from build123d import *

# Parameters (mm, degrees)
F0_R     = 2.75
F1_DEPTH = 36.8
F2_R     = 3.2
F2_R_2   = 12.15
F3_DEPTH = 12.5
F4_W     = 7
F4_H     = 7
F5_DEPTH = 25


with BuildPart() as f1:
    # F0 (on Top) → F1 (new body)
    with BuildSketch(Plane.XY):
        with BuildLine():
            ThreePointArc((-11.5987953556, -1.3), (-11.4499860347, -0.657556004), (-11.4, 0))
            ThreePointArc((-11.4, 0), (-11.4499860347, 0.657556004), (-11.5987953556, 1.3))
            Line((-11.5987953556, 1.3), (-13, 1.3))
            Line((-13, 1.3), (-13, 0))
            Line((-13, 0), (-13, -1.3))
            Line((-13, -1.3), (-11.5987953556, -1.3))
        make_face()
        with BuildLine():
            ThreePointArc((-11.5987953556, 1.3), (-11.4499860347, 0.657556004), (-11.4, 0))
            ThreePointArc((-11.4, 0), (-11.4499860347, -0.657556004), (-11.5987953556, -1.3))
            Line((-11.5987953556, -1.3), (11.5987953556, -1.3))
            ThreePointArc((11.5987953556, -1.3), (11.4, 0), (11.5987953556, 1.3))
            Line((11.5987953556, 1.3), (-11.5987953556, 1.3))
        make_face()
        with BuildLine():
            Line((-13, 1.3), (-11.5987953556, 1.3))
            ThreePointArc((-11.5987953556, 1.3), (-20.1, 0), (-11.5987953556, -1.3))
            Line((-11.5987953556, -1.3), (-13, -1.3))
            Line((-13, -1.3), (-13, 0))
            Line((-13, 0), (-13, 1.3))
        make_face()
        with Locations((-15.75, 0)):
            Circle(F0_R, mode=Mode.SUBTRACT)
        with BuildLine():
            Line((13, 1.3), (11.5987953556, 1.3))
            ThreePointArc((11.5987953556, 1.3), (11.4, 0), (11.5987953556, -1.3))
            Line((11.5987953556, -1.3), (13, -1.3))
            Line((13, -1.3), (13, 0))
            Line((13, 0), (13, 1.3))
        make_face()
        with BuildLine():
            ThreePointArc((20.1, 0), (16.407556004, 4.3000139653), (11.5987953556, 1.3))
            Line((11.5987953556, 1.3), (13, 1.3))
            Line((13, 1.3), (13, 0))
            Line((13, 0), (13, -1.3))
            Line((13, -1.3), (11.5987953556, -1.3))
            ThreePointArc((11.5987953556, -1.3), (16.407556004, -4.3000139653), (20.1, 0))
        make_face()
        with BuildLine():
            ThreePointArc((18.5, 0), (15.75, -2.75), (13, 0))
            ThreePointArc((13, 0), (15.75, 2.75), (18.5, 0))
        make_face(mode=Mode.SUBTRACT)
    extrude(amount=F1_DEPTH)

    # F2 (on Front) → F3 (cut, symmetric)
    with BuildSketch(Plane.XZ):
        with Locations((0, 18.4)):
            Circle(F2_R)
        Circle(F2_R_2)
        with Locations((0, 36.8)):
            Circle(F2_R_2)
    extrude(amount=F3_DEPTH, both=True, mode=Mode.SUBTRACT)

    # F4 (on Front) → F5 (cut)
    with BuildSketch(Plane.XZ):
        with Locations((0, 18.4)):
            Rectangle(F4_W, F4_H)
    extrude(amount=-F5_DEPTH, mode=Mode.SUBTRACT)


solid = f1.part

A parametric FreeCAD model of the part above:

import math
import FreeCAD as App
import Part
import Sketcher

V = App.Vector


def add_polygon(sketch, points):
    """Adds a closed chain of lines whose ends are joined by coincident constraints."""
    first, n = sketch.GeometryCount, len(points)
    for a, b in zip(points, points[1:] + points[:1]):
        sketch.addGeometry(Part.LineSegment(App.Vector(*a, 0), App.Vector(*b, 0)), False)
    for i in range(n):
        sketch.addConstraint(Sketcher.Constraint("Coincident", first + i, 2, first + (i + 1) % n, 1))

doc = App.newDocument("Part")
body = doc.addObject("PartDesign::Body", "Body")

# Sketch on XY plane
sketch1 = body.newObject("Sketcher::SketchObject", "Sketch")
sketch1.AttachmentSupport = (doc.getObject("XY_Plane"), [""])
sketch1.MapMode = "FlatFace"
sketch1.addGeometry([
    Part.LineSegment(V(-11.598795, -1.3, 0), V(11.598795, -1.3, 0)),  # 0
    Part.ArcOfCircle(Part.Circle(V(15.75, 0, 0), V(0, 0, 1), 4.35), math.radians(-162.611421), math.radians(0)),  # 1
    Part.ArcOfCircle(Part.Circle(V(15.75, 0, 0), V(0, 0, 1), 4.35), math.radians(0), math.radians(162.611421)),  # 2
    Part.LineSegment(V(11.598795, 1.3, 0), V(-11.598795, 1.3, 0)),  # 3
    Part.ArcOfCircle(Part.Circle(V(-15.75, 0, 0), V(0, 0, 1), 4.35), math.radians(17.388579), math.radians(342.611421)),  # 4
    Part.Circle(V(-15.75, 0, 0), V(0, 0, 1), 2.75),  # 5
    Part.Circle(V(15.75, 0, 0), V(0, 0, 1), 2.75),  # 6
], False)
sketch1.addConstraint([
    Sketcher.Constraint("Coincident", 0, 2, 1, 1),
    Sketcher.Constraint("Tangent", 1, 2, 2, 1),
    Sketcher.Constraint("Coincident", 2, 2, 3, 1),
    Sketcher.Constraint("Coincident", 3, 2, 4, 1),
    Sketcher.Constraint("Coincident", 4, 2, 0, 1),
    Sketcher.Constraint("Horizontal", 0),
    Sketcher.Constraint("Horizontal", 3),
    Sketcher.Constraint("Coincident", 5, 3, 4, 3),
    Sketcher.Constraint("Coincident", 6, 3, 1, 3),
    Sketcher.Constraint("Equal", 1, 2),
    Sketcher.Constraint("Equal", 2, 4),
    Sketcher.Constraint("Equal", 5, 6),
    Sketcher.Constraint("Symmetric", 1, 3, 4, 3, -1, 1),
    Sketcher.Constraint("Symmetric", 0, 2, 2, 2, -1),
    Sketcher.Constraint("PointOnObject", 1, 2, -1),
    Sketcher.Constraint("Diameter", 5, 5.5),
    Sketcher.Constraint("Radius", 1, 4.35),
    Sketcher.Constraint("DistanceY", 0, 2, -1, 1, 1.3),
    Sketcher.Constraint("DistanceX", -1, 1, 1, 2, 20.1),
])
pad1 = body.newObject("PartDesign::Pad", "Pad")
pad1.Profile = sketch1
pad1.Length = 36.8

# Sketch on XZ plane
sketch2 = body.newObject("Sketcher::SketchObject", "Sketch001")
sketch2.AttachmentSupport = (doc.getObject("XZ_Plane"), [""])
sketch2.MapMode = "FlatFace"
sketch2.addGeometry([
    Part.Circle(V(0, 18.4, 0), V(0, 0, 1), 3.2),
    Part.Circle(V(0, 0, 0), V(0, 0, 1), 12.15),
    Part.Circle(V(0, 36.8, 0), V(0, 0, 1), 12.15),
], False)
sketch2.addConstraint([
    Sketcher.Constraint("Coincident", 1, 3, -1, 1),
    Sketcher.Constraint("Equal", 1, 2),
    Sketcher.Constraint("PointOnObject", 0, 3, -2),
    Sketcher.Constraint("PointOnObject", 2, 3, -2),
    Sketcher.Constraint("Diameter", 0, 6.4),
    Sketcher.Constraint("Diameter", 1, 24.3),
    Sketcher.Constraint("DistanceY", -1, 1, 0, 3, 18.4),
    Sketcher.Constraint("DistanceY", -1, 1, 2, 3, 36.8),
])
pocket1 = body.newObject("PartDesign::Pocket", "Pocket")
pocket1.Profile = sketch2
pocket1.Length = 25
pocket1.Midplane = True

# Sketch on XZ plane
sketch3 = body.newObject("Sketcher::SketchObject", "Sketch002")
sketch3.AttachmentSupport = (doc.getObject("XZ_Plane"), [""])
sketch3.MapMode = "FlatFace"
add_polygon(sketch3, [(-3.5, 21.9), (-3.5, 14.9), (3.5, 14.9), (3.5, 21.9)])  # lines 0-3
sketch3.addConstraint([
    Sketcher.Constraint("Vertical", 0),
    Sketcher.Constraint("Horizontal", 1),
    Sketcher.Constraint("Vertical", 2),
    Sketcher.Constraint("Horizontal", 3),
    Sketcher.Constraint("Equal", 3, 0),
    Sketcher.Constraint("DistanceX", 1, 1, 1, 2, 7.0),
    Sketcher.Constraint("DistanceX", 0, 2, -1, 1, 3.5),
    Sketcher.Constraint("DistanceY", -1, 1, 0, 2, 14.9),
])
pocket2 = body.newObject("PartDesign::Pocket", "Pocket001")
pocket2.Profile = sketch3
pocket2.Length = 25

doc.recompute()
